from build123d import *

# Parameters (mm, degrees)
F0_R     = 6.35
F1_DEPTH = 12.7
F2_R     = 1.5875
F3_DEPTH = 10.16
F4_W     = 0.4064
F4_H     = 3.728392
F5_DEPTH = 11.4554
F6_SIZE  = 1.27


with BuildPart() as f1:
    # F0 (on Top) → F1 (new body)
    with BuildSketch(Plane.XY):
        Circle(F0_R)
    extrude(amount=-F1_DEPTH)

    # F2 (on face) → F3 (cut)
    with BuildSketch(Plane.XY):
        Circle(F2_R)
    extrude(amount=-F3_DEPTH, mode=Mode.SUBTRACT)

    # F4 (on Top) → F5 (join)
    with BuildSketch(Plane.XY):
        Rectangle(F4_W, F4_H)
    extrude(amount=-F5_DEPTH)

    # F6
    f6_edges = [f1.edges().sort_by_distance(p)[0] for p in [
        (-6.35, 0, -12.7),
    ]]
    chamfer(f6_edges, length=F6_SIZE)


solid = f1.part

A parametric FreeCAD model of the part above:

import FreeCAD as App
import Part
import Sketcher
Q = App.Units.Quantity


def edges_at(feature, points):
    """Names of the edges that pass closest to the given points."""
    edges = feature.Shape.Edges
    near = lambda p: min(range(len(edges)), key=lambda i: edges[i].distToShape(Part.Vertex(*p))[0])
    return sorted({f"Edge{near(p) + 1}" for p in points})


def add_polygon(sketch, points):
    """Adds a closed chain of lines whose ends are joined by coincident constraints."""
    first, n = sketch.GeometryCount, len(points)
    for a, b in zip(points, points[1:] + points[:1]):
        sketch.addGeometry(Part.LineSegment(App.Vector(*a, 0), App.Vector(*b, 0)), False)
    for i in range(n):
        sketch.addConstraint(Sketcher.Constraint("Coincident", first + i, 2, first + (i + 1) % n, 1))

doc = App.newDocument("Part")
params = doc.addObject("Spreadsheet::Sheet", "Params")
for row, (alias, value) in enumerate([
    ("sketch1_diameter", "0.5 in"),
    ("pad1_length", "0.5 in"),
    ("sketch2_diameter", "0.125 in"),
    ("pocket1_length", "0.4 in"),
    ("sketch3_width", "0.016 in"),
    ("pad2_length", "0.451 in"),
    ("chamfer_size", "0.05 in"),
], start=1):
    params.set(f"A{row}", alias)
    params.set(f"B{row}", "=" + value)
    params.setAlias(f"B{row}", alias)

body = doc.addObject("PartDesign::Body", "Body")

# Sketch on XY plane
sketch1 = body.newObject("Sketcher::SketchObject", "Sketch")
sketch1.AttachmentSupport = (doc.getObject("XY_Plane"), [""])
sketch1.MapMode = "FlatFace"
sketch1.addGeometry(Part.Circle(App.Vector(0, 0, 0), App.Vector(0, 0, 1), 6), False)
sketch1.addConstraint(Sketcher.Constraint("Coincident", 0, 3, -1, 1))
sketch1.addConstraint(Sketcher.Constraint("Diameter", 0, Q("0.5 in")))
sketch1.setExpression("Constraints[1]", "Params.sketch1_diameter")
pad1 = body.newObject("PartDesign::Pad", "Pad")
pad1.Profile = sketch1
pad1.setExpression("Length", "Params.pad1_length")
pad1.Reversed = True

# Sketch on XY plane
sketch2 = body.newObject("Sketcher::SketchObject", "Sketch001")
sketch2.AttachmentSupport = (doc.getObject("XY_Plane"), [""])
sketch2.MapMode = "FlatFace"
sketch2.addGeometry(Part.Circle(App.Vector(0, 0, 0), App.Vector(0, 0, 1), 1.6), False)
sketch2.addConstraint(Sketcher.Constraint("Coincident", 0, 3, -1, 1))
sketch2.addConstraint(Sketcher.Constraint("Diameter", 0, Q("0.125 in")))
sketch2.setExpression("Constraints[1]", "Params.sketch2_diameter")
pocket1 = body.newObject("PartDesign::Pocket", "Pocket")
pocket1.Profile = sketch2
pocket1.setExpression("Length", "Params.pocket1_length")

# Sketch on XY plane
sketch3 = body.newObject("Sketcher::SketchObject", "Sketch002")
sketch3.AttachmentSupport = (doc.getObject("XY_Plane"), [""])
sketch3.MapMode = "FlatFace"
add_polygon(sketch3, [(-0.2, 1.86), (-0.2, -1.86), (0.2, -1.86), (0.2, 1.86)])  # lines 0-3
sketch3.addConstraint(Sketcher.Constraint("Vertical", 0))
sketch3.addConstraint(Sketcher.Constraint("Horizontal", 1))
sketch3.addConstraint(Sketcher.Constraint("Vertical", 2))
sketch3.addConstraint(Sketcher.Constraint("Horizontal", 3))
sketch3.addConstraint(Sketcher.Constraint("Symmetric", 0, 2, 2, 2, -1, 1))
sketch3.addConstraint(Sketcher.Constraint("DistanceX", 1, 1, 1, 2, Q("0.016 in")))
sketch3.addConstraint(Sketcher.Constraint("DistanceY", 0, 2, 0, 1, 3.728392))
sketch3.setExpression("Constraints[9]", "Params.sketch3_width")
pad2 = body.newObject("PartDesign::Pad", "Pad001")
pad2.Profile = sketch3
pad2.setExpression("Length", "Params.pad2_length")
pad2.Reversed = True
doc.recompute()

chamfer = body.newObject("PartDesign::Chamfer", "Chamfer")
chamfer.Base = (pad2, edges_at(pad2, [(-6.35, 0, -12.7)]))
chamfer.setExpression("Size", "Params.chamfer_size")

doc.recompute()
